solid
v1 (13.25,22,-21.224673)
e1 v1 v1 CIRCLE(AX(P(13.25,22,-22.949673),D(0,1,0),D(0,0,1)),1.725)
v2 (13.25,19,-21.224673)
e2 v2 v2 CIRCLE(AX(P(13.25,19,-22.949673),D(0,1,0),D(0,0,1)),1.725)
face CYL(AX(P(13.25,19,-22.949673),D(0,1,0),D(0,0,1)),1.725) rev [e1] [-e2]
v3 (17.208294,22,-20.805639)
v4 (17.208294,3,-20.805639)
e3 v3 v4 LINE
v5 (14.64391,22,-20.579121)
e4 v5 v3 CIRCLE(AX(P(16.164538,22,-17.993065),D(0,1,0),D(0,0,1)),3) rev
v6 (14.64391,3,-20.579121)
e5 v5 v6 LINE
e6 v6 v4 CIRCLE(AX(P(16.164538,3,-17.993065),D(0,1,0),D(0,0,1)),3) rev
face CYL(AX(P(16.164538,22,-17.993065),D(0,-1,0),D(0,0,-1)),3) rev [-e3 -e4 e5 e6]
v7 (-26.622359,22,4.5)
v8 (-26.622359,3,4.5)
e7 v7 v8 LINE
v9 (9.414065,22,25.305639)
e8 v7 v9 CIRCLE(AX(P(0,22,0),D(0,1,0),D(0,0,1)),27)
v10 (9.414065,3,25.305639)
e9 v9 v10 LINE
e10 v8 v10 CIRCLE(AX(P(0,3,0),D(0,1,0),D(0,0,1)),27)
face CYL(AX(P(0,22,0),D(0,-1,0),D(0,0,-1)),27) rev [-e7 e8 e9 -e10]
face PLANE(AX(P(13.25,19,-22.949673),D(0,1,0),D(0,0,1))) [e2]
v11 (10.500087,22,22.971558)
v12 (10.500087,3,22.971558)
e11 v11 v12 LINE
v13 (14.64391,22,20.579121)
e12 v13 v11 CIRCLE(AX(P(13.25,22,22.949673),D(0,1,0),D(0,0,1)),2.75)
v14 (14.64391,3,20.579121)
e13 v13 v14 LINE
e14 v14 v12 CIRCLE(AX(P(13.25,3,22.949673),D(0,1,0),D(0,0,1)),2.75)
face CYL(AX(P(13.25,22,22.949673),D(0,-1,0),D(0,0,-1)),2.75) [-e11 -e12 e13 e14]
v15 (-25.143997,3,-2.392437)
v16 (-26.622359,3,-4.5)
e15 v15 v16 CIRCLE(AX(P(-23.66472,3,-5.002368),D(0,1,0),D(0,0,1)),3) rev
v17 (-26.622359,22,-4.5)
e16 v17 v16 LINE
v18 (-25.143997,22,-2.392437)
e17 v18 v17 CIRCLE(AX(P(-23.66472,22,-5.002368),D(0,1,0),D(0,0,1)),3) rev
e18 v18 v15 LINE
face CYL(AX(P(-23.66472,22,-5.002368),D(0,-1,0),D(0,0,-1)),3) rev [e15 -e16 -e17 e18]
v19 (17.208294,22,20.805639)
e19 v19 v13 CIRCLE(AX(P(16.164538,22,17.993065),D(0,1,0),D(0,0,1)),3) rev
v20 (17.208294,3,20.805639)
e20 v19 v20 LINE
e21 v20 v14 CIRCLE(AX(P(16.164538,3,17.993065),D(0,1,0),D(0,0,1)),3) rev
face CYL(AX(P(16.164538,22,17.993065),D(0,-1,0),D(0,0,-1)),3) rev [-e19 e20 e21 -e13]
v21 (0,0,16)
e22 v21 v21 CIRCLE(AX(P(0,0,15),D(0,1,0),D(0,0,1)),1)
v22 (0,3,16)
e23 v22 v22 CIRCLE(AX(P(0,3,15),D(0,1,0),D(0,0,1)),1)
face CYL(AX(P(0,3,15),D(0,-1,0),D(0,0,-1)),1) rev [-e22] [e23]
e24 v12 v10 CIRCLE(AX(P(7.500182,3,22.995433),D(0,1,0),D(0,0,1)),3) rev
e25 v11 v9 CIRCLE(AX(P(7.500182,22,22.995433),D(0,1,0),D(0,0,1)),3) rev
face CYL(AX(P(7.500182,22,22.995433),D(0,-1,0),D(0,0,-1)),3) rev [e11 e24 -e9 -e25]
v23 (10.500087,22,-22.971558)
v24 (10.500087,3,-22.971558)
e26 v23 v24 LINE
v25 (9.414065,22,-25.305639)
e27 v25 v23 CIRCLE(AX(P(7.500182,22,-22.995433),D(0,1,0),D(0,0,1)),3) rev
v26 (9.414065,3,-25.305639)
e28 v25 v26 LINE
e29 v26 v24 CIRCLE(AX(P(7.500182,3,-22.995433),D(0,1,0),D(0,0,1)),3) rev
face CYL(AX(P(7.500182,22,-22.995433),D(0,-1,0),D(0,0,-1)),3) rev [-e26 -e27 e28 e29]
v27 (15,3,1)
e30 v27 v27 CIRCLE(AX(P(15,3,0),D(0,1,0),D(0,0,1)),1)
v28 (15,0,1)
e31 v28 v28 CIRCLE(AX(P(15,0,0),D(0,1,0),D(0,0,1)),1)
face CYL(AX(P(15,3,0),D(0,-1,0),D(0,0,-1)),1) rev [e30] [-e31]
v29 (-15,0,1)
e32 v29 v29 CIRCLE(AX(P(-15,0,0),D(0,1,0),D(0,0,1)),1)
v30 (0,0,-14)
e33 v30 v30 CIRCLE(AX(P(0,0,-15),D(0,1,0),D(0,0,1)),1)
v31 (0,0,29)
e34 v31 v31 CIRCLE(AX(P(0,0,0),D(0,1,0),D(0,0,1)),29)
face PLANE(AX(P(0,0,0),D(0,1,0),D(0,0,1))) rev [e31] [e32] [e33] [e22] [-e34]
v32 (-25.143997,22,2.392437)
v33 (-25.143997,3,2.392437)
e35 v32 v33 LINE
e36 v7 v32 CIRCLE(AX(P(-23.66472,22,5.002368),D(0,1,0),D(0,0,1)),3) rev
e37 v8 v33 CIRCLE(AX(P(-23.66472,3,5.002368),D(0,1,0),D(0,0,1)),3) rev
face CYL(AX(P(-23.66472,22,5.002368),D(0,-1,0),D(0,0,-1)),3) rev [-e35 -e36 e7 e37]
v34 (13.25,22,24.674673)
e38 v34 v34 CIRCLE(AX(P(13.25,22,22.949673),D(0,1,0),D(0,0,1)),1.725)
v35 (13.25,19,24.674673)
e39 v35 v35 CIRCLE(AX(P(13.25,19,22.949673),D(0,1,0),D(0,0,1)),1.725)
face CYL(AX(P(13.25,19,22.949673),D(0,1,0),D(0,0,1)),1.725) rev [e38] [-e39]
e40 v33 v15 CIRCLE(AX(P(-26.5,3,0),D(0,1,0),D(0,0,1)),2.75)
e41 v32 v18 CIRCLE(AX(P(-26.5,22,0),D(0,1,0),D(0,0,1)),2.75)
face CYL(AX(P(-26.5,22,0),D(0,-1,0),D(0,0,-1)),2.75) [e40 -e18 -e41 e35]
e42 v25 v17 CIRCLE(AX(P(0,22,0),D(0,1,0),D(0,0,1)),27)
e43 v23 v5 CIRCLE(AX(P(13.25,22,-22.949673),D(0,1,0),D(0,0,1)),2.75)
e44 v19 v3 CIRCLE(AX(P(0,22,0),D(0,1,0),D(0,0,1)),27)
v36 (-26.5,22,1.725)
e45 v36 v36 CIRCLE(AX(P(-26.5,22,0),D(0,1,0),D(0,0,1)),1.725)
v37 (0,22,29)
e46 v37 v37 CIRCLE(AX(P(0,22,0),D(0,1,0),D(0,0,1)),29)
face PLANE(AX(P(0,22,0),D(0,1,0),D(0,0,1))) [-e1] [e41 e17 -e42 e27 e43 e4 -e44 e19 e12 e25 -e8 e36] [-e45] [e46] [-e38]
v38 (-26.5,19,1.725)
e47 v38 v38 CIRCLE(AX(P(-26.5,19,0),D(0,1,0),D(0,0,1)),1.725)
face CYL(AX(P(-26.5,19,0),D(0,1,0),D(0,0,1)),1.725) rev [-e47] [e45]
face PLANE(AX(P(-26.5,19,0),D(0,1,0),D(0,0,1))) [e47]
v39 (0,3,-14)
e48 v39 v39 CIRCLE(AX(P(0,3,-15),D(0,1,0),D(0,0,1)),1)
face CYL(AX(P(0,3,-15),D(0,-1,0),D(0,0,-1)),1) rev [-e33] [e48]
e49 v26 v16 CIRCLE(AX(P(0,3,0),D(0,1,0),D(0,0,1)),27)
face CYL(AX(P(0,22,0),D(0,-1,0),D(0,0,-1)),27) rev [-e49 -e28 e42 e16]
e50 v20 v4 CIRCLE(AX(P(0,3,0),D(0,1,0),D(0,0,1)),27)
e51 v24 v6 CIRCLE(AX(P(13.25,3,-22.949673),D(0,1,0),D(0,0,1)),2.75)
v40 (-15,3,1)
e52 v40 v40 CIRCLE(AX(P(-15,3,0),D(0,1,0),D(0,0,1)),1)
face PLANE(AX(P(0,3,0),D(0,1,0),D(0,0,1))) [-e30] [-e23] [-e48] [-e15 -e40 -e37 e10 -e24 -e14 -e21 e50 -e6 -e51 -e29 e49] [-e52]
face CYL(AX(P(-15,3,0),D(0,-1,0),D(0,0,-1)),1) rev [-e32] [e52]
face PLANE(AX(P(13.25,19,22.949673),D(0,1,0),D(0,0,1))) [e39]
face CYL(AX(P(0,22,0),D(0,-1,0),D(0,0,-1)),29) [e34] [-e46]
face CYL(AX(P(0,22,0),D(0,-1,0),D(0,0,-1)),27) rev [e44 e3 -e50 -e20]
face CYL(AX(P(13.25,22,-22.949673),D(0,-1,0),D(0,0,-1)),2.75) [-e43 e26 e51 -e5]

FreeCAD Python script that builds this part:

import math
import FreeCAD as App
import Part
import Sketcher
from FreeCAD import Vector

doc = App.newDocument("Part")
body = doc.addObject("PartDesign::Body", "Body")

sketch1 = body.newObject("Sketcher::SketchObject", "Sketch")
sketch1.AttachmentSupport = (doc.getObject("XZ_Plane"), [""])
sketch1.MapMode = "FlatFace"
sketch1.addGeometry(Part.Circle(Vector(0, 0, 0), Vector(0, 0, 1), 29), False)
sketch1.addGeometry(Part.ArcOfCircle(Part.Circle(Vector(0, 0, 0), Vector(0, 0, 1), 27), math.radians(-170), math.radians(-70)), False)
sketch1.addGeometry(Part.ArcOfCircle(Part.Circle(Vector(7.5, -23, 0), Vector(0, 0, 1), 3), math.radians(-50), math.radians(0)), False)
sketch1.addGeometry(Part.ArcOfCircle(Part.Circle(Vector(13.2, -22.9, 0), Vector(0, 0, 1), 2.7), math.radians(60), math.radians(180)), False)
sketch1.addGeometry(Part.ArcOfCircle(Part.Circle(Vector(16.2, -18, 0), Vector(0, 0, 1), 3), math.radians(-120), math.radians(-70)), False)
sketch1.addGeometry(Part.ArcOfCircle(Part.Circle(Vector(0, 0, 0), Vector(0, 0, 1), 27), math.radians(-50), math.radians(50)), False)
sketch1.addGeometry(Part.ArcOfCircle(Part.Circle(Vector(16.2, 18, 0), Vector(0, 0, 1), 3), math.radians(70), math.radians(120)), False)
sketch1.addGeometry(Part.ArcOfCircle(Part.Circle(Vector(13.2, 22.9, 0), Vector(0, 0, 1), 2.7), math.radians(180), math.radians(300)), False)
sketch1.addGeometry(Part.ArcOfCircle(Part.Circle(Vector(7.5, 23, 0), Vector(0, 0, 1), 3), math.radians(0), math.radians(50)), False)
sketch1.addGeometry(Part.ArcOfCircle(Part.Circle(Vector(0, 0, 0), Vector(0, 0, 1), 27), math.radians(70), math.radians(170)), False)
sketch1.addGeometry(Part.ArcOfCircle(Part.Circle(Vector(-23.7, 5, 0), Vector(0, 0, 1), 3), math.radians(-170), math.radians(-120)), False)
sketch1.addGeometry(Part.ArcOfCircle(Part.Circle(Vector(-26.5, 0, 0), Vector(0, 0, 1), 2.8), math.radians(-60), math.radians(60)), False)
sketch1.addGeometry(Part.ArcOfCircle(Part.Circle(Vector(-23.7, -5, 0), Vector(0, 0, 1), 3), math.radians(120), math.radians(170)), False)
sketch1.addConstraint(Sketcher.Constraint("Coincident", 1, 2, 2, 1))
sketch1.addConstraint(Sketcher.Constraint("Tangent", 2, 2, 3, 2))
sketch1.addConstraint(Sketcher.Constraint("Tangent", 3, 1, 4, 1))
sketch1.addConstraint(Sketcher.Constraint("Coincident", 4, 2, 5, 1))
sketch1.addConstraint(Sketcher.Constraint("Coincident", 5, 2, 6, 1))
sketch1.addConstraint(Sketcher.Constraint("Tangent", 6, 2, 7, 2))
sketch1.addConstraint(Sketcher.Constraint("Tangent", 7, 1, 8, 1))
sketch1.addConstraint(Sketcher.Constraint("Coincident", 8, 2, 9, 1))
sketch1.addConstraint(Sketcher.Constraint("Coincident", 9, 2, 10, 1))
sketch1.addConstraint(Sketcher.Constraint("Tangent", 10, 2, 11, 2))
sketch1.addConstraint(Sketcher.Constraint("Tangent", 11, 1, 12, 1))
sketch1.addConstraint(Sketcher.Constraint("Coincident", 12, 2, 1, 1))
sketch1.addConstraint(Sketcher.Constraint("Coincident", 0, 3, -1, 1))
sketch1.addConstraint(Sketcher.Constraint("Coincident", 1, 3, -1, 1))
sketch1.addConstraint(Sketcher.Constraint("Coincident", 5, 3, -1, 1))
sketch1.addConstraint(Sketcher.Constraint("Coincident", 9, 3, -1, 1))
sketch1.addConstraint(Sketcher.Constraint("Equal", 2, 4))
sketch1.addConstraint(Sketcher.Constraint("Equal", 1, 5))
sketch1.addConstraint(Sketcher.Constraint("Equal", 4, 6))
sketch1.addConstraint(Sketcher.Constraint("Equal", 3, 7))
sketch1.addConstraint(Sketcher.Constraint("Equal", 6, 8))
sketch1.addConstraint(Sketcher.Constraint("Equal", 5, 9))
sketch1.addConstraint(Sketcher.Constraint("Equal", 8, 10))
sketch1.addConstraint(Sketcher.Constraint("Equal", 7, 11))
sketch1.addConstraint(Sketcher.Constraint("Equal", 10, 12))
sketch1.addConstraint(Sketcher.Constraint("Symmetric", 4, 3, 6, 3, -1))
sketch1.addConstraint(Sketcher.Constraint("Symmetric", 2, 3, 8, 3, -1))
sketch1.addConstraint(Sketcher.Constraint("Symmetric", 10, 3, 12, 3, -1))
sketch1.addConstraint(Sketcher.Constraint("Diameter", 0, 58.0))
sketch1.addConstraint(Sketcher.Constraint("Radius", 1, 27.0))
sketch1.addConstraint(Sketcher.Constraint("Radius", 2, 3.0))
sketch1.addConstraint(Sketcher.Constraint("Radius", 3, 2.75))
sketch1.addConstraint(Sketcher.Constraint("DistanceY", 12, 2, 9, 2, 9.0))
sketch1.addConstraint(Sketcher.Constraint("DistanceX", 11, 3, -1, 1, 26.5))
sketch1.addConstraint(Sketcher.Constraint("DistanceY", 1, 2, 4, 2, 4.5))
sketch1.addConstraint(Sketcher.Constraint("DistanceX", -1, 1, 3, 3, 13.25))
sketch1.addConstraint(Sketcher.Constraint("DistanceX", -1, 1, 4, 3, 16.164538))
sketch1.addConstraint(Sketcher.Constraint("DistanceY", 1, 2, -1, 1, 25.305639))
pad1 = body.newObject("PartDesign::Pad", "Pad")
pad1.Profile = sketch1
pad1.Length = 22
pad1.Reversed = True

sketch2 = body.newObject("Sketcher::SketchObject", "Sketch001")
sketch2.AttachmentSupport = (doc.getObject("XZ_Plane"), [""])
sketch2.MapMode = "FlatFace"
sketch2.addGeometry(Part.ArcOfCircle(Part.Circle(Vector(-23.7, 5, 0), Vector(0, 0, 1), 3), math.radians(-170), math.radians(-120)), False)
sketch2.addGeometry(Part.ArcOfCircle(Part.Circle(Vector(0, 0, 0), Vector(0, 0, 1), 27), math.radians(70), math.radians(170)), False)
sketch2.addGeometry(Part.ArcOfCircle(Part.Circle(Vector(7.5, 23, 0), Vector(0, 0, 1), 3), math.radians(0), math.radians(50)), False)
sketch2.addGeometry(Part.ArcOfCircle(Part.Circle(Vector(13.2, 22.9, 0), Vector(0, 0, 1), 2.7), math.radians(180), math.radians(300)), False)
sketch2.addGeometry(Part.ArcOfCircle(Part.Circle(Vector(16.2, 18, 0), Vector(0, 0, 1), 3), math.radians(70), math.radians(120)), False)
sketch2.addGeometry(Part.ArcOfCircle(Part.Circle(Vector(0, 0, 0), Vector(0, 0, 1), 27), math.radians(-50), math.radians(50)), False)
sketch2.addGeometry(Part.ArcOfCircle(Part.Circle(Vector(16.2, -18, 0), Vector(0, 0, 1), 3), math.radians(-120), math.radians(-70)), False)
sketch2.addGeometry(Part.ArcOfCircle(Part.Circle(Vector(13.2, -22.9, 0), Vector(0, 0, 1), 2.7), math.radians(60), math.radians(180)), False)
sketch2.addGeometry(Part.ArcOfCircle(Part.Circle(Vector(7.5, -23, 0), Vector(0, 0, 1), 3), math.radians(-50), math.radians(0)), False)
sketch2.addGeometry(Part.ArcOfCircle(Part.Circle(Vector(0, 0, 0), Vector(0, 0, 1), 27), math.radians(-170), math.radians(-70)), False)
sketch2.addGeometry(Part.ArcOfCircle(Part.Circle(Vector(-23.7, -5, 0), Vector(0, 0, 1), 3), math.radians(120), math.radians(170)), False)
sketch2.addGeometry(Part.ArcOfCircle(Part.Circle(Vector(-26.5, 0, 0), Vector(0, 0, 1), 2.8), math.radians(-60), math.radians(60)), False)
sketch2.addGeometry(Part.Circle(Vector(0, 15, 0), Vector(0, 0, 1), 1), False)
sketch2.addGeometry(Part.Circle(Vector(15, 0, 0), Vector(0, 0, 1), 1), False)
sketch2.addGeometry(Part.Circle(Vector(0, -15, 0), Vector(0, 0, 1), 1), False)
sketch2.addGeometry(Part.Circle(Vector(-15, 0, 0), Vector(0, 0, 1), 1), False)
sketch2.addConstraint(Sketcher.Constraint("Coincident", 0, 1, 1, 2))
sketch2.addConstraint(Sketcher.Constraint("Coincident", 1, 1, 2, 2))
sketch2.addConstraint(Sketcher.Constraint("Tangent", 2, 1, 3, 1))
sketch2.addConstraint(Sketcher.Constraint("Tangent", 3, 2, 4, 2))
sketch2.addConstraint(Sketcher.Constraint("Coincident", 4, 1, 5, 2))
sketch2.addConstraint(Sketcher.Constraint("Coincident", 5, 1, 6, 2))
sketch2.addConstraint(Sketcher.Constraint("Tangent", 6, 1, 7, 1))
sketch2.addConstraint(Sketcher.Constraint("Tangent", 7, 2, 8, 2))
sketch2.addConstraint(Sketcher.Constraint("Coincident", 8, 1, 9, 2))
sketch2.addConstraint(Sketcher.Constraint("Coincident", 9, 1, 10, 2))
sketch2.addConstraint(Sketcher.Constraint("Tangent", 10, 1, 11, 1))
sketch2.addConstraint(Sketcher.Constraint("Tangent", 11, 2, 0, 2))
sketch2.addConstraint(Sketcher.Constraint("Coincident", 1, 3, -1, 1))
sketch2.addConstraint(Sketcher.Constraint("Coincident", 5, 3, -1, 1))
sketch2.addConstraint(Sketcher.Constraint("Coincident", 9, 3, -1, 1))
sketch2.addConstraint(Sketcher.Constraint("Equal", 0, 2))
sketch2.addConstraint(Sketcher.Constraint("Equal", 2, 4))
sketch2.addConstraint(Sketcher.Constraint("Equal", 1, 5))
sketch2.addConstraint(Sketcher.Constraint("Equal", 4, 6))
sketch2.addConstraint(Sketcher.Constraint("Equal", 3, 7))
sketch2.addConstraint(Sketcher.Constraint("Equal", 6, 8))
sketch2.addConstraint(Sketcher.Constraint("Equal", 5, 9))
sketch2.addConstraint(Sketcher.Constraint("Equal", 8, 10))
sketch2.addConstraint(Sketcher.Constraint("Equal", 7, 11))
sketch2.addConstraint(Sketcher.Constraint("Equal", 12, 13))
sketch2.addConstraint(Sketcher.Constraint("Equal", 13, 14))
sketch2.addConstraint(Sketcher.Constraint("Equal", 14, 15))
sketch2.addConstraint(Sketcher.Constraint("Symmetric", 12, 3, 14, 3, -1, 1))
sketch2.addConstraint(Sketcher.Constraint("Symmetric", 13, 3, 15, 3, -1, 1))
sketch2.addConstraint(Sketcher.Constraint("Symmetric", 4, 3, 6, 3, -1))
sketch2.addConstraint(Sketcher.Constraint("Symmetric", 2, 3, 8, 3, -1))
sketch2.addConstraint(Sketcher.Constraint("Symmetric", 0, 3, 10, 3, -1))
sketch2.addConstraint(Sketcher.Constraint("PointOnObject", 12, 3, -2))
sketch2.addConstraint(Sketcher.Constraint("PointOnObject", 13, 3, -1))
sketch2.addConstraint(Sketcher.Constraint("Diameter", 12, 2.0))
sketch2.addConstraint(Sketcher.Constraint("Radius", 0, 3.0))
sketch2.addConstraint(Sketcher.Constraint("Radius", 1, 27.0))
sketch2.addConstraint(Sketcher.Constraint("Radius", 3, 2.75))
sketch2.addConstraint(Sketcher.Constraint("DistanceY", -1, 1, 12, 3, 15.0))
sketch2.addConstraint(Sketcher.Constraint("DistanceX", -1, 1, 13, 3, 15.0))
sketch2.addConstraint(Sketcher.Constraint("DistanceY", 9, 1, 0, 1, 9.0))
sketch2.addConstraint(Sketcher.Constraint("DistanceX", 11, 3, -1, 1, 26.5))
sketch2.addConstraint(Sketcher.Constraint("DistanceY", 4, 1, 1, 1, 4.5))
sketch2.addConstraint(Sketcher.Constraint("DistanceX", -1, 1, 3, 3, 13.25))
sketch2.addConstraint(Sketcher.Constraint("DistanceY", 6, 3, 2, 3, 40.988498))
sketch2.addConstraint(Sketcher.Constraint("DistanceX", -1, 1, 4, 3, 16.164538))
pad2 = body.newObject("PartDesign::Pad", "Pad001")
pad2.Profile = sketch2
pad2.Length = 3
pad2.Reversed = True

sketch3 = body.newObject("Sketcher::SketchObject", "Sketch002")
sketch3.AttachmentSupport = (doc.getObject("XZ_Plane"), [""])
sketch3.MapMode = "FlatFace"
sketch3.AttachmentOffset = App.Placement(Vector(0, 0, -22), App.Rotation())
sketch3.addGeometry(Part.Circle(Vector(13.2, -22.9, 0), Vector(0, 0, 1), 1.7), False)
sketch3.addGeometry(Part.Circle(Vector(13.2, 22.9, 0), Vector(0, 0, 1), 1.7), False)
sketch3.addGeometry(Part.Circle(Vector(-26.5, 0, 0), Vector(0, 0, 1), 1.7), False)
sketch3.addConstraint(Sketcher.Constraint("Equal", 0, 1))
sketch3.addConstraint(Sketcher.Constraint("Equal", 1, 2))
sketch3.addConstraint(Sketcher.Constraint("Symmetric", 0, 3, 1, 3, -1))
sketch3.addConstraint(Sketcher.Constraint("PointOnObject", 2, 3, -1))
sketch3.addConstraint(Sketcher.Constraint("Diameter", 0, 3.45))
sketch3.addConstraint(Sketcher.Constraint("DistanceX", 2, 3, -1, 1, 26.5))
sketch3.addConstraint(Sketcher.Constraint("DistanceX", -1, 1, 0, 3, 13.25))
sketch3.addConstraint(Sketcher.Constraint("DistanceY", 0, 3, -1, 1, 22.949673))
pocket1 = body.newObject("PartDesign::Pocket", "Pocket")
pocket1.Profile = sketch3
pocket1.Length = 3
pocket1.Reversed = True

doc.recompute()
